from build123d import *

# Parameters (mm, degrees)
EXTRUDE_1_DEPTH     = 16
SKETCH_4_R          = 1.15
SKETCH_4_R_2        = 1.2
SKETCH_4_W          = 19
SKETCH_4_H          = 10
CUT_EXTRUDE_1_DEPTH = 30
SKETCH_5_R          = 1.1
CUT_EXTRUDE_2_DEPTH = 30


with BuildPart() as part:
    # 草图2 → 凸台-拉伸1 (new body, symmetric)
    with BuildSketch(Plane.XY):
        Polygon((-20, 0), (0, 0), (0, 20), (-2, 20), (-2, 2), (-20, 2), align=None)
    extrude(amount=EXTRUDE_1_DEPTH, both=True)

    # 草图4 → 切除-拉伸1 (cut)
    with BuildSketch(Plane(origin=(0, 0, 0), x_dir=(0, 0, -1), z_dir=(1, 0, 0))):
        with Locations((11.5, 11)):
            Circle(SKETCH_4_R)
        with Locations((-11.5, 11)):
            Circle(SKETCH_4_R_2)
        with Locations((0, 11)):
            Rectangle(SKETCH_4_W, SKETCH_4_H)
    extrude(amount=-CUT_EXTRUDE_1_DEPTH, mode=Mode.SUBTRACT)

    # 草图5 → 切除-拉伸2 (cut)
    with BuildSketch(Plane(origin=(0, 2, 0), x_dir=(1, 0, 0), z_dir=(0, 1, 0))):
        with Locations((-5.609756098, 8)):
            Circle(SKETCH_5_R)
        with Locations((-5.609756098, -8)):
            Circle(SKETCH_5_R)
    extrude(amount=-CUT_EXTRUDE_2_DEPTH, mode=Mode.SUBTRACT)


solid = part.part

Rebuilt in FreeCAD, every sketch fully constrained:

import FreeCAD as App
import Part
import Sketcher

V = App.Vector


def add_polygon(sketch, points):
    """Adds a closed chain of lines whose ends are joined by coincident constraints."""
    first, n = sketch.GeometryCount, len(points)
    for a, b in zip(points, points[1:] + points[:1]):
        sketch.addGeometry(Part.LineSegment(App.Vector(*a, 0), App.Vector(*b, 0)), False)
    for i in range(n):
        sketch.addConstraint(Sketcher.Constraint("Coincident", first + i, 2, first + (i + 1) % n, 1))

doc = App.newDocument("Part")
body = doc.addObject("PartDesign::Body", "Body")

sketch1 = doc.addObject("Sketcher::SketchObject", "Sketch")
body.addObject(sketch1)
sketch1.AttachmentSupport = (doc.XY_Plane, [""])
sketch1.MapMode = "FlatFace"
add_polygon(sketch1, [(-20, 0), (0, 0), (0, 20), (-2, 20), (-2, 2), (-20, 2)])
sketch1.addConstraint([
    Sketcher.Constraint("Horizontal", 0),
    Sketcher.Constraint("Vertical", 1),
    Sketcher.Constraint("Horizontal", 2),
    Sketcher.Constraint("Vertical", 3),
    Sketcher.Constraint("Horizontal", 4),
    Sketcher.Constraint("Vertical", 5),
    Sketcher.Constraint("Coincident", 0, 2, -1, 1),
    Sketcher.Constraint("Equal", 0, 1),
    Sketcher.Constraint("Equal", 4, 3),
    Sketcher.Constraint("DistanceX", 0, 1, 0, 2, 20.0),
    Sketcher.Constraint("DistanceX", 2, 2, 2, 1, 2.0),
])
pad1 = doc.addObject("PartDesign::Pad", "Pad")
body.addObject(pad1)
pad1.Profile = sketch1
pad1.Length = 32
pad1.Midplane = True

sketch2 = doc.addObject("Sketcher::SketchObject", "Sketch001")
body.addObject(sketch2)
sketch2.AttachmentSupport = (doc.YZ_Plane, [""])
sketch2.MapMode = "FlatFace"
sketch2.addGeometry(Part.Circle(V(11, -11.5, 0), V(0, 0, 1), 1.1), False)
sketch2.addGeometry(Part.Circle(V(11, 11.5, 0), V(0, 0, 1), 1.2), False)
add_polygon(sketch2, [(16, 9.5), (6, 9.5), (6, -9.5), (16, -9.5)])
sketch2.addConstraint([
    Sketcher.Constraint("Horizontal", 2),
    Sketcher.Constraint("Vertical", 3),
    Sketcher.Constraint("Horizontal", 4),
    Sketcher.Constraint("Vertical", 5),
    Sketcher.Constraint("Symmetric", 0, 3, 1, 3, -1),
    Sketcher.Constraint("Diameter", 0, 2.3),
    Sketcher.Constraint("Diameter", 1, 2.4),
    Sketcher.Constraint("DistanceX", 2, 2, 2, 1, 10.0),
    Sketcher.Constraint("DistanceY", 3, 2, 3, 1, 19.0),
    Sketcher.Constraint("DistanceX", -1, 1, 0, 3, 11.0),
    Sketcher.Constraint("DistanceX", -1, 1, 2, 2, 6.0),
    Sketcher.Constraint("DistanceY", 0, 3, 1, 3, 23.0),
    Sketcher.Constraint("DistanceY", 2, 2, 1, 3, 2.0),
])
pocket1 = doc.addObject("PartDesign::Pocket", "Pocket")
body.addObject(pocket1)
pocket1.Profile = sketch2
pocket1.Length = 30

sketch3 = doc.addObject("Sketcher::SketchObject", "Sketch002")
body.addObject(sketch3)
sketch3.AttachmentSupport = (doc.XZ_Plane, [""])
sketch3.MapMode = "FlatFace"
sketch3.AttachmentOffset = App.Placement(V(0, 0, -2), App.Rotation())
sketch3.addGeometry([
    Part.Circle(V(-5.6, -8, 0), V(0, 0, 1), 1.1),
    Part.Circle(V(-5.6, 8, 0), V(0, 0, 1), 1.1),
], False)
sketch3.addConstraint([
    Sketcher.Constraint("Equal", 0, 1),
    Sketcher.Constraint("Symmetric", 0, 3, 1, 3, -1),
    Sketcher.Constraint("Diameter", 0, 2.2),
    Sketcher.Constraint("DistanceY", 0, 3, -1, 1, 8.0),
    Sketcher.Constraint("DistanceX", 0, 3, -1, 1, 5.609756),
])
pocket2 = doc.addObject("PartDesign::Pocket", "Pocket001")
body.addObject(pocket2)
pocket2.Profile = sketch3
pocket2.Length = 30
pocket2.Reversed = True

doc.recompute()
